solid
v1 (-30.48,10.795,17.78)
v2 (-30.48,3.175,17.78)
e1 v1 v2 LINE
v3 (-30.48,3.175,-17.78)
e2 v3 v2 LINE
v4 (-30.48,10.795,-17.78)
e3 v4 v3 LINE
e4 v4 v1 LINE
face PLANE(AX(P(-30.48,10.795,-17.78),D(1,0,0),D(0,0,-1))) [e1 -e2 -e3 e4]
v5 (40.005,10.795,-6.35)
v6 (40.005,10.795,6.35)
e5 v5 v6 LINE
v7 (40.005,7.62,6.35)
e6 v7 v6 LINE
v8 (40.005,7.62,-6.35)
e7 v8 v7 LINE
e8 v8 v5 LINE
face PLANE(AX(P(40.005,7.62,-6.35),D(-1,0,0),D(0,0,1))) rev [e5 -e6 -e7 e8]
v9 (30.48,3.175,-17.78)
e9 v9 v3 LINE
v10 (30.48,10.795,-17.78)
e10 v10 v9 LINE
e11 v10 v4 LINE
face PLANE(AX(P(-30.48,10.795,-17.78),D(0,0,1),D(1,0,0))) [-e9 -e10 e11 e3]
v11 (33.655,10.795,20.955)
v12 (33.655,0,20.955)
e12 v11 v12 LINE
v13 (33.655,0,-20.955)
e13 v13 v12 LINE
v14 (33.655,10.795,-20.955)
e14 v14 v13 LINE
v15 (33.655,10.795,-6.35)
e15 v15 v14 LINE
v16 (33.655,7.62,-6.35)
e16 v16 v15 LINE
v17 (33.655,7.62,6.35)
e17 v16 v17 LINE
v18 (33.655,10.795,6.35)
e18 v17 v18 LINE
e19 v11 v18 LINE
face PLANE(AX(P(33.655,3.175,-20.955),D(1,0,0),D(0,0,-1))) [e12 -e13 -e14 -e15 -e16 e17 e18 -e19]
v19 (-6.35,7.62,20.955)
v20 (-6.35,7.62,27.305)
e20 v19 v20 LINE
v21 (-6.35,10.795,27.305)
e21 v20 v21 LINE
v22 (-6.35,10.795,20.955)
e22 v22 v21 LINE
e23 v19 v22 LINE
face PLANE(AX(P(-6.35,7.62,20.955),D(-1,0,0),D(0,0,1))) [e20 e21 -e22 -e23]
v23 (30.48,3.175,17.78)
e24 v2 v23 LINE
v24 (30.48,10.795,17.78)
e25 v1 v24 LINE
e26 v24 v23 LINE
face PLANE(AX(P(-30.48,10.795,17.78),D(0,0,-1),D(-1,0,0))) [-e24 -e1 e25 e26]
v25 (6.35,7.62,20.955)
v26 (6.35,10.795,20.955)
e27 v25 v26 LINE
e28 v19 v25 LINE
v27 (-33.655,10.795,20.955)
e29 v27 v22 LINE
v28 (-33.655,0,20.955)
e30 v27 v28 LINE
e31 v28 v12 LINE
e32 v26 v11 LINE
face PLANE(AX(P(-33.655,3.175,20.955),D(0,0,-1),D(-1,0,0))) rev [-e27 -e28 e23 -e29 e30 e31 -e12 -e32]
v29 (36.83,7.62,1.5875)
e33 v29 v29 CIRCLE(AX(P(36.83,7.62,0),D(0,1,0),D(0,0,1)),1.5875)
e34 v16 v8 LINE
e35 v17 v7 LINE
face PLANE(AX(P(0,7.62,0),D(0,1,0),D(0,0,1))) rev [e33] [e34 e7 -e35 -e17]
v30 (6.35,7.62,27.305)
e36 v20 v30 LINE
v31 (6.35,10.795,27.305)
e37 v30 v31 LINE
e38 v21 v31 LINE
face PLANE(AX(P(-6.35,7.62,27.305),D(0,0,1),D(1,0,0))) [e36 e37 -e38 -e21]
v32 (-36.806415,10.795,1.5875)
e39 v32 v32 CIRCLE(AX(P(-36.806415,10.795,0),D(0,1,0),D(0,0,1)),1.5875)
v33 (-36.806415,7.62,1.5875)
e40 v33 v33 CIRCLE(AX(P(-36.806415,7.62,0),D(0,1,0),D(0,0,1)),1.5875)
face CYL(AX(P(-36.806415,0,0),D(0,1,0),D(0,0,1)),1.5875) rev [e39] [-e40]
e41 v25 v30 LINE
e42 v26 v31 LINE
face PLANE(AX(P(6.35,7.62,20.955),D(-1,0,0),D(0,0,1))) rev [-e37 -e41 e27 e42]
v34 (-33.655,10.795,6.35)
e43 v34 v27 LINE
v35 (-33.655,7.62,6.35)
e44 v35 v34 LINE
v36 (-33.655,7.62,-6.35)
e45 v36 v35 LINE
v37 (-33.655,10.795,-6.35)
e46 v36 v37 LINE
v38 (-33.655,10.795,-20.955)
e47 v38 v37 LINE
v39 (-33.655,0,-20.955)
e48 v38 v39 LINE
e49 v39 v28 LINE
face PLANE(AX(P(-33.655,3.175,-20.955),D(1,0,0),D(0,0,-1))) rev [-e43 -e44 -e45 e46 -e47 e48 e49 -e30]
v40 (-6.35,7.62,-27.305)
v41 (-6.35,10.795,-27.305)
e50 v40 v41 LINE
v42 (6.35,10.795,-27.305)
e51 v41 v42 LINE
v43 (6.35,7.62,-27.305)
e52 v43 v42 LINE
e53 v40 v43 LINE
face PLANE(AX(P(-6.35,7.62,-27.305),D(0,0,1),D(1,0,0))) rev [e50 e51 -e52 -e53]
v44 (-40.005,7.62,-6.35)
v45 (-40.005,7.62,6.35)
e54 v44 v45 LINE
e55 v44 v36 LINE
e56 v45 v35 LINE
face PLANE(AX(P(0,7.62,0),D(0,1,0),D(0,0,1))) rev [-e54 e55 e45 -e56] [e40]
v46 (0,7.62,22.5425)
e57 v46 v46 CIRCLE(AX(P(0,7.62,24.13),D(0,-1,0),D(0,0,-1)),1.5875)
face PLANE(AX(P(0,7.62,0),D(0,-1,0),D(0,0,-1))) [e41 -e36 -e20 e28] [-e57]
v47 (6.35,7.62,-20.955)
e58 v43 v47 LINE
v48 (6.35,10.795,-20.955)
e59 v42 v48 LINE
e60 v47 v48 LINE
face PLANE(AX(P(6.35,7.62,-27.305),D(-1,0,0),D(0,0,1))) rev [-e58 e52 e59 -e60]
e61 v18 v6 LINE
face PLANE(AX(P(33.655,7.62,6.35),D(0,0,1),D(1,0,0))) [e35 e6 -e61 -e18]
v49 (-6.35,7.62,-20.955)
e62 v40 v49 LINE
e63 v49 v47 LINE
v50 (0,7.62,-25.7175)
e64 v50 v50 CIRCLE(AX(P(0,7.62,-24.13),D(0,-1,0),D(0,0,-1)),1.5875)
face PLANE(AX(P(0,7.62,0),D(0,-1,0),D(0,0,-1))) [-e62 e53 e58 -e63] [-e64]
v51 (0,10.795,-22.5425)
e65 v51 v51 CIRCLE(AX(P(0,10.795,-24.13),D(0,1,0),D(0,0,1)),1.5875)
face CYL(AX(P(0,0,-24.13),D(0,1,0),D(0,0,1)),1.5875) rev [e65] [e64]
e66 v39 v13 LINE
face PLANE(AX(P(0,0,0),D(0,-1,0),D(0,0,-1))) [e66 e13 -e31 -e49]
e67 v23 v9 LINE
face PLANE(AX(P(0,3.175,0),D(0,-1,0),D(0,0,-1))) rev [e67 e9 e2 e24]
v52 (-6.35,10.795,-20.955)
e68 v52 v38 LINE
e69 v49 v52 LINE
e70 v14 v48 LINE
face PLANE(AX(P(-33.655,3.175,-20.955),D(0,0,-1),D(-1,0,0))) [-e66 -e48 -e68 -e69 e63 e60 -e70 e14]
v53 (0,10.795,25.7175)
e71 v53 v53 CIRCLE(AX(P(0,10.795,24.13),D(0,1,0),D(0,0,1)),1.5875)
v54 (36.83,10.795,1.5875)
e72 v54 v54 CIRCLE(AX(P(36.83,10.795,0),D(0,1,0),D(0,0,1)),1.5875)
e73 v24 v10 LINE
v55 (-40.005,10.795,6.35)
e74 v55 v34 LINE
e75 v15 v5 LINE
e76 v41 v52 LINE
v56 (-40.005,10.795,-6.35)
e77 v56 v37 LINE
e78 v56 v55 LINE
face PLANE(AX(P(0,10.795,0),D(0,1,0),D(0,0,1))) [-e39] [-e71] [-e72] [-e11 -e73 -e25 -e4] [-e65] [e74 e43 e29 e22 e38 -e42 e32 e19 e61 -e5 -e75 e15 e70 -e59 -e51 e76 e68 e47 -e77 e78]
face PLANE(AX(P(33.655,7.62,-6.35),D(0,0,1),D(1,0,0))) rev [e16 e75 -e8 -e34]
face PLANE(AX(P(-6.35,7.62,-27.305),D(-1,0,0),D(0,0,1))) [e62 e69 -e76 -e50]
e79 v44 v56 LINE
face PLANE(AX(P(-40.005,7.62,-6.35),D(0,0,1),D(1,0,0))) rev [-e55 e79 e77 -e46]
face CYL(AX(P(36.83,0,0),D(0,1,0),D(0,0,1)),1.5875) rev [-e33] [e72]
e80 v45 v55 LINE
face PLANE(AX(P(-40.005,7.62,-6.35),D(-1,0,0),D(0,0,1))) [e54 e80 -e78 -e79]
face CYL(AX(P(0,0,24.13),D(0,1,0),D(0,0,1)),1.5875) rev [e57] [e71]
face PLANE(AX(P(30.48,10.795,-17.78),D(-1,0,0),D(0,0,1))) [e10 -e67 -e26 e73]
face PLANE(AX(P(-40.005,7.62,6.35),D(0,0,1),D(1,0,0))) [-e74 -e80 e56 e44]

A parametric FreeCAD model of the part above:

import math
import FreeCAD as App
import Part
import Sketcher
from FreeCAD import Vector
Q = App.Units.Quantity


def add_polygon(sketch, points):
    """Adds a closed chain of lines whose ends are joined by coincident constraints."""
    first, n = sketch.GeometryCount, len(points)
    for a, b in zip(points, points[1:] + points[:1]):
        sketch.addGeometry(Part.LineSegment(App.Vector(*a, 0), App.Vector(*b, 0)), False)
    for i in range(n):
        sketch.addConstraint(Sketcher.Constraint("Coincident", first + i, 2, first + (i + 1) % n, 1))

doc = App.newDocument("Part")
params = doc.addObject("Spreadsheet::Sheet", "Params")
for row, (alias, value) in enumerate([
    ("sketch1_width", "2.65 in"),
    ("sketch1_height", "1.65 in"),
    ("pad1_length", "0.125 in"),
    ("sketch2_width", "2.4 in"),
    ("sketch2_height", "1.4 in"),
    ("sketch2_width2", "2.65 in"),
    ("sketch2_height2", "1.65 in"),
    ("pad2_length", "0.3 in"),
    ("sketch3_width", "0.5 in"),
    ("sketch3_width2", "0.25 in"),
    ("pad3_length", "0.125 in"),
    ("sketch4_diameter", "0.125 in"),
], start=1):
    params.set(f"A{row}", alias)
    params.set(f"B{row}", "=" + value)
    params.setAlias(f"B{row}", alias)

body = doc.addObject("PartDesign::Body", "Body")

# Sketch on XZ plane
sketch1 = body.newObject("Sketcher::SketchObject", "Sketch")
sketch1.AttachmentSupport = (doc.getObject("XZ_Plane"), [""])
sketch1.MapMode = "FlatFace"
add_polygon(sketch1, [(-34, -21), (-34, 21), (34, 21), (34, -21)])  # lines 0-3
sketch1.addConstraint([
    Sketcher.Constraint("Vertical", 0),
    Sketcher.Constraint("Horizontal", 1),
    Sketcher.Constraint("Vertical", 2),
    Sketcher.Constraint("Horizontal", 3),
    Sketcher.Constraint("Symmetric", 0, 2, 2, 2, -1, 1),
    Sketcher.Constraint("DistanceX", 1, 1, 1, 2, Q("2.65 in")),
    Sketcher.Constraint("DistanceY", 0, 1, 0, 2, Q("1.65 in")),
])
sketch1.setExpression("Constraints[9]", "Params.sketch1_width")
sketch1.setExpression("Constraints[10]", "Params.sketch1_height")
pad1 = body.newObject("PartDesign::Pad", "Pad")
pad1.Profile = sketch1
pad1.setExpression("Length", "Params.pad1_length")
pad1.Reversed = True

# Sketch on XZ plane
sketch2 = body.newObject("Sketcher::SketchObject", "Sketch001")
sketch2.AttachmentSupport = (doc.getObject("XZ_Plane"), [""])
sketch2.MapMode = "FlatFace"
sketch2.AttachmentOffset = App.Placement(Vector(0, 0, -0.125 * 25.4), App.Rotation())
add_polygon(sketch2, [(-34, -21), (-34, 21), (34, 21), (34, -21)])  # lines 0-3
add_polygon(sketch2, [(30, 18), (-30, 18), (-30, -18), (30, -18)])  # lines 4-7
sketch2.addConstraint([
    Sketcher.Constraint("Vertical", 0),
    Sketcher.Constraint("Horizontal", 1),
    Sketcher.Constraint("Vertical", 2),
    Sketcher.Constraint("Horizontal", 3),
    Sketcher.Constraint("Horizontal", 4),
    Sketcher.Constraint("Vertical", 5),
    Sketcher.Constraint("Horizontal", 6),
    Sketcher.Constraint("Vertical", 7),
    Sketcher.Constraint("Symmetric", 0, 2, 2, 2, -1, 1),
    Sketcher.Constraint("Symmetric", 4, 2, 6, 2, -1, 1),
    Sketcher.Constraint("DistanceX", 4, 2, 4, 1, Q("2.4 in")),
    Sketcher.Constraint("DistanceY", 5, 2, 5, 1, Q("1.4 in")),
    Sketcher.Constraint("DistanceX", 1, 1, 1, 2, Q("2.65 in")),
    Sketcher.Constraint("DistanceY", 0, 1, 0, 2, Q("1.65 in")),
])
sketch2.setExpression("Constraints[18]", "Params.sketch2_width")
sketch2.setExpression("Constraints[19]", "Params.sketch2_height")
sketch2.setExpression("Constraints[20]", "Params.sketch2_width2")
sketch2.setExpression("Constraints[21]", "Params.sketch2_height2")
pad2 = body.newObject("PartDesign::Pad", "Pad001")
pad2.Profile = sketch2
pad2.setExpression("Length", "Params.pad2_length")
pad2.Reversed = True

# Sketch on XZ plane
sketch3 = body.newObject("Sketcher::SketchObject", "Sketch002")
sketch3.AttachmentSupport = (doc.getObject("XZ_Plane"), [""])
sketch3.MapMode = "FlatFace"
sketch3.AttachmentOffset = App.Placement(Vector(0, 0, -0.425 * 25.4), App.Rotation())
add_polygon(sketch3, [(-6, 21), (-6, 27), (6, 27), (6, 21)])  # lines 0-3
add_polygon(sketch3, [(-6, -27), (-6, -21), (6, -21), (6, -27)])  # lines 4-7
add_polygon(sketch3, [(34, -6), (34, 6), (40, 6), (40, -6)])  # lines 8-11
add_polygon(sketch3, [(-40, -6), (-40, 6), (-34, 6), (-34, -6)])  # lines 12-15
sketch3.addConstraint([
    Sketcher.Constraint("Vertical", 0),
    Sketcher.Constraint("Horizontal", 1),
    Sketcher.Constraint("Vertical", 2),
    Sketcher.Constraint("Horizontal", 3),
    Sketcher.Constraint("Vertical", 4),
    Sketcher.Constraint("Horizontal", 5),
    Sketcher.Constraint("Vertical", 6),
    Sketcher.Constraint("Horizontal", 7),
    Sketcher.Constraint("Vertical", 8),
    Sketcher.Constraint("Horizontal", 9),
    Sketcher.Constraint("Vertical", 10),
    Sketcher.Constraint("Horizontal", 11),
    Sketcher.Constraint("Vertical", 12),
    Sketcher.Constraint("Horizontal", 13),
    Sketcher.Constraint("Vertical", 14),
    Sketcher.Constraint("Horizontal", 15),
    Sketcher.Constraint("Symmetric", 2, 2, 4, 2, -1, 1),
    Sketcher.Constraint("Symmetric", 0, 2, 6, 2, -1, 1),
    Sketcher.Constraint("Symmetric", 10, 2, 12, 2, -1, 1),
    Sketcher.Constraint("Symmetric", 8, 2, 14, 2, -1, 1),
    Sketcher.Constraint("Horizontal", 9, 2, 12, 2),
    Sketcher.Constraint("Vertical", 3, 2, 4, 2),
    Sketcher.Constraint("Equal", 15, 0),
    Sketcher.Constraint("Equal", 7, 8),
    Sketcher.Constraint("DistanceX", 1, 1, 1, 2, Q("0.5 in")),
    Sketcher.Constraint("DistanceX", 9, 1, 9, 2, Q("0.25 in")),
    Sketcher.Constraint("DistanceY", 4, 2, 0, 2, Q("1.9 in")),
    Sketcher.Constraint("DistanceX", -1, 1, 8, 2, Q("1.325 in")),
])
sketch3.setExpression("Constraints[40]", "Params.sketch3_width")
sketch3.setExpression("Constraints[41]", "Params.sketch3_width2")
pad3 = body.newObject("PartDesign::Pad", "Pad002")
pad3.Profile = sketch3
pad3.setExpression("Length", "Params.pad3_length")

# Sketch on XZ plane
sketch4 = body.newObject("Sketcher::SketchObject", "Sketch003")
sketch4.AttachmentSupport = (doc.getObject("XZ_Plane"), [""])
sketch4.MapMode = "FlatFace"
sketch4.AttachmentOffset = App.Placement(Vector(0, 0, -0.425 * 25.4), App.Rotation())
sketch4.addGeometry([
    Part.ArcOfCircle(Part.Circle(Vector(0, -24.1, 0), Vector(0, 0, 1), 1.6), math.radians(90), math.radians(270)),  # 0
    Part.ArcOfCircle(Part.Circle(Vector(0, -24.1, 0), Vector(0, 0, 1), 1.6), math.radians(0), math.radians(90)),  # 1
    Part.ArcOfCircle(Part.Circle(Vector(0, -24.1, 0), Vector(0, 0, 1), 1.6), math.radians(-90), math.radians(0)),  # 2
    Part.Circle(Vector(-36.8, 0, 0), Vector(0, 0, 1), 1.6),  # 3
    Part.Circle(Vector(36.8, 0, 0), Vector(0, 0, 1), 1.6),  # 4
    Part.Circle(Vector(0, 24.1, 0), Vector(0, 0, 1), 1.6),  # 5
], False)
sketch4.addConstraint([
    Sketcher.Constraint("Tangent", 0, 1, 1, 2),
    Sketcher.Constraint("Tangent", 1, 1, 2, 2),
    Sketcher.Constraint("Tangent", 2, 1, 0, 2),
    Sketcher.Constraint("Equal", 2, 3),
    Sketcher.Constraint("Equal", 3, 4),
    Sketcher.Constraint("Equal", 4, 5),
    Sketcher.Constraint("Symmetric", 0, 3, 5, 3, -1, 1),
    Sketcher.Constraint("PointOnObject", 0, 3, -2),
    Sketcher.Constraint("PointOnObject", 3, 3, -1),
    Sketcher.Constraint("PointOnObject", 4, 3, -1),
    Sketcher.Constraint("PointOnObject", 0, 1, -2),
    Sketcher.Constraint("PointOnObject", 2, 1, -2),
    Sketcher.Constraint("Horizontal", 2, 3, 1, 1),
    Sketcher.Constraint("Diameter", 3, Q("0.125 in")),
    Sketcher.Constraint("DistanceY", 0, 3, 5, 3, Q("1.9 in")),
    Sketcher.Constraint("DistanceX", -1, 1, 4, 3, Q("1.45 in")),
    Sketcher.Constraint("DistanceX", 3, 3, -1, 1, 36.806415),
])
sketch4.setExpression("Constraints[13]", "Params.sketch4_diameter")
pocket1 = body.newObject("PartDesign::Pocket", "Pocket")
pocket1.Profile = sketch4
pocket1.Type = "ThroughAll"
pocket1.Reversed = True

doc.recompute()
